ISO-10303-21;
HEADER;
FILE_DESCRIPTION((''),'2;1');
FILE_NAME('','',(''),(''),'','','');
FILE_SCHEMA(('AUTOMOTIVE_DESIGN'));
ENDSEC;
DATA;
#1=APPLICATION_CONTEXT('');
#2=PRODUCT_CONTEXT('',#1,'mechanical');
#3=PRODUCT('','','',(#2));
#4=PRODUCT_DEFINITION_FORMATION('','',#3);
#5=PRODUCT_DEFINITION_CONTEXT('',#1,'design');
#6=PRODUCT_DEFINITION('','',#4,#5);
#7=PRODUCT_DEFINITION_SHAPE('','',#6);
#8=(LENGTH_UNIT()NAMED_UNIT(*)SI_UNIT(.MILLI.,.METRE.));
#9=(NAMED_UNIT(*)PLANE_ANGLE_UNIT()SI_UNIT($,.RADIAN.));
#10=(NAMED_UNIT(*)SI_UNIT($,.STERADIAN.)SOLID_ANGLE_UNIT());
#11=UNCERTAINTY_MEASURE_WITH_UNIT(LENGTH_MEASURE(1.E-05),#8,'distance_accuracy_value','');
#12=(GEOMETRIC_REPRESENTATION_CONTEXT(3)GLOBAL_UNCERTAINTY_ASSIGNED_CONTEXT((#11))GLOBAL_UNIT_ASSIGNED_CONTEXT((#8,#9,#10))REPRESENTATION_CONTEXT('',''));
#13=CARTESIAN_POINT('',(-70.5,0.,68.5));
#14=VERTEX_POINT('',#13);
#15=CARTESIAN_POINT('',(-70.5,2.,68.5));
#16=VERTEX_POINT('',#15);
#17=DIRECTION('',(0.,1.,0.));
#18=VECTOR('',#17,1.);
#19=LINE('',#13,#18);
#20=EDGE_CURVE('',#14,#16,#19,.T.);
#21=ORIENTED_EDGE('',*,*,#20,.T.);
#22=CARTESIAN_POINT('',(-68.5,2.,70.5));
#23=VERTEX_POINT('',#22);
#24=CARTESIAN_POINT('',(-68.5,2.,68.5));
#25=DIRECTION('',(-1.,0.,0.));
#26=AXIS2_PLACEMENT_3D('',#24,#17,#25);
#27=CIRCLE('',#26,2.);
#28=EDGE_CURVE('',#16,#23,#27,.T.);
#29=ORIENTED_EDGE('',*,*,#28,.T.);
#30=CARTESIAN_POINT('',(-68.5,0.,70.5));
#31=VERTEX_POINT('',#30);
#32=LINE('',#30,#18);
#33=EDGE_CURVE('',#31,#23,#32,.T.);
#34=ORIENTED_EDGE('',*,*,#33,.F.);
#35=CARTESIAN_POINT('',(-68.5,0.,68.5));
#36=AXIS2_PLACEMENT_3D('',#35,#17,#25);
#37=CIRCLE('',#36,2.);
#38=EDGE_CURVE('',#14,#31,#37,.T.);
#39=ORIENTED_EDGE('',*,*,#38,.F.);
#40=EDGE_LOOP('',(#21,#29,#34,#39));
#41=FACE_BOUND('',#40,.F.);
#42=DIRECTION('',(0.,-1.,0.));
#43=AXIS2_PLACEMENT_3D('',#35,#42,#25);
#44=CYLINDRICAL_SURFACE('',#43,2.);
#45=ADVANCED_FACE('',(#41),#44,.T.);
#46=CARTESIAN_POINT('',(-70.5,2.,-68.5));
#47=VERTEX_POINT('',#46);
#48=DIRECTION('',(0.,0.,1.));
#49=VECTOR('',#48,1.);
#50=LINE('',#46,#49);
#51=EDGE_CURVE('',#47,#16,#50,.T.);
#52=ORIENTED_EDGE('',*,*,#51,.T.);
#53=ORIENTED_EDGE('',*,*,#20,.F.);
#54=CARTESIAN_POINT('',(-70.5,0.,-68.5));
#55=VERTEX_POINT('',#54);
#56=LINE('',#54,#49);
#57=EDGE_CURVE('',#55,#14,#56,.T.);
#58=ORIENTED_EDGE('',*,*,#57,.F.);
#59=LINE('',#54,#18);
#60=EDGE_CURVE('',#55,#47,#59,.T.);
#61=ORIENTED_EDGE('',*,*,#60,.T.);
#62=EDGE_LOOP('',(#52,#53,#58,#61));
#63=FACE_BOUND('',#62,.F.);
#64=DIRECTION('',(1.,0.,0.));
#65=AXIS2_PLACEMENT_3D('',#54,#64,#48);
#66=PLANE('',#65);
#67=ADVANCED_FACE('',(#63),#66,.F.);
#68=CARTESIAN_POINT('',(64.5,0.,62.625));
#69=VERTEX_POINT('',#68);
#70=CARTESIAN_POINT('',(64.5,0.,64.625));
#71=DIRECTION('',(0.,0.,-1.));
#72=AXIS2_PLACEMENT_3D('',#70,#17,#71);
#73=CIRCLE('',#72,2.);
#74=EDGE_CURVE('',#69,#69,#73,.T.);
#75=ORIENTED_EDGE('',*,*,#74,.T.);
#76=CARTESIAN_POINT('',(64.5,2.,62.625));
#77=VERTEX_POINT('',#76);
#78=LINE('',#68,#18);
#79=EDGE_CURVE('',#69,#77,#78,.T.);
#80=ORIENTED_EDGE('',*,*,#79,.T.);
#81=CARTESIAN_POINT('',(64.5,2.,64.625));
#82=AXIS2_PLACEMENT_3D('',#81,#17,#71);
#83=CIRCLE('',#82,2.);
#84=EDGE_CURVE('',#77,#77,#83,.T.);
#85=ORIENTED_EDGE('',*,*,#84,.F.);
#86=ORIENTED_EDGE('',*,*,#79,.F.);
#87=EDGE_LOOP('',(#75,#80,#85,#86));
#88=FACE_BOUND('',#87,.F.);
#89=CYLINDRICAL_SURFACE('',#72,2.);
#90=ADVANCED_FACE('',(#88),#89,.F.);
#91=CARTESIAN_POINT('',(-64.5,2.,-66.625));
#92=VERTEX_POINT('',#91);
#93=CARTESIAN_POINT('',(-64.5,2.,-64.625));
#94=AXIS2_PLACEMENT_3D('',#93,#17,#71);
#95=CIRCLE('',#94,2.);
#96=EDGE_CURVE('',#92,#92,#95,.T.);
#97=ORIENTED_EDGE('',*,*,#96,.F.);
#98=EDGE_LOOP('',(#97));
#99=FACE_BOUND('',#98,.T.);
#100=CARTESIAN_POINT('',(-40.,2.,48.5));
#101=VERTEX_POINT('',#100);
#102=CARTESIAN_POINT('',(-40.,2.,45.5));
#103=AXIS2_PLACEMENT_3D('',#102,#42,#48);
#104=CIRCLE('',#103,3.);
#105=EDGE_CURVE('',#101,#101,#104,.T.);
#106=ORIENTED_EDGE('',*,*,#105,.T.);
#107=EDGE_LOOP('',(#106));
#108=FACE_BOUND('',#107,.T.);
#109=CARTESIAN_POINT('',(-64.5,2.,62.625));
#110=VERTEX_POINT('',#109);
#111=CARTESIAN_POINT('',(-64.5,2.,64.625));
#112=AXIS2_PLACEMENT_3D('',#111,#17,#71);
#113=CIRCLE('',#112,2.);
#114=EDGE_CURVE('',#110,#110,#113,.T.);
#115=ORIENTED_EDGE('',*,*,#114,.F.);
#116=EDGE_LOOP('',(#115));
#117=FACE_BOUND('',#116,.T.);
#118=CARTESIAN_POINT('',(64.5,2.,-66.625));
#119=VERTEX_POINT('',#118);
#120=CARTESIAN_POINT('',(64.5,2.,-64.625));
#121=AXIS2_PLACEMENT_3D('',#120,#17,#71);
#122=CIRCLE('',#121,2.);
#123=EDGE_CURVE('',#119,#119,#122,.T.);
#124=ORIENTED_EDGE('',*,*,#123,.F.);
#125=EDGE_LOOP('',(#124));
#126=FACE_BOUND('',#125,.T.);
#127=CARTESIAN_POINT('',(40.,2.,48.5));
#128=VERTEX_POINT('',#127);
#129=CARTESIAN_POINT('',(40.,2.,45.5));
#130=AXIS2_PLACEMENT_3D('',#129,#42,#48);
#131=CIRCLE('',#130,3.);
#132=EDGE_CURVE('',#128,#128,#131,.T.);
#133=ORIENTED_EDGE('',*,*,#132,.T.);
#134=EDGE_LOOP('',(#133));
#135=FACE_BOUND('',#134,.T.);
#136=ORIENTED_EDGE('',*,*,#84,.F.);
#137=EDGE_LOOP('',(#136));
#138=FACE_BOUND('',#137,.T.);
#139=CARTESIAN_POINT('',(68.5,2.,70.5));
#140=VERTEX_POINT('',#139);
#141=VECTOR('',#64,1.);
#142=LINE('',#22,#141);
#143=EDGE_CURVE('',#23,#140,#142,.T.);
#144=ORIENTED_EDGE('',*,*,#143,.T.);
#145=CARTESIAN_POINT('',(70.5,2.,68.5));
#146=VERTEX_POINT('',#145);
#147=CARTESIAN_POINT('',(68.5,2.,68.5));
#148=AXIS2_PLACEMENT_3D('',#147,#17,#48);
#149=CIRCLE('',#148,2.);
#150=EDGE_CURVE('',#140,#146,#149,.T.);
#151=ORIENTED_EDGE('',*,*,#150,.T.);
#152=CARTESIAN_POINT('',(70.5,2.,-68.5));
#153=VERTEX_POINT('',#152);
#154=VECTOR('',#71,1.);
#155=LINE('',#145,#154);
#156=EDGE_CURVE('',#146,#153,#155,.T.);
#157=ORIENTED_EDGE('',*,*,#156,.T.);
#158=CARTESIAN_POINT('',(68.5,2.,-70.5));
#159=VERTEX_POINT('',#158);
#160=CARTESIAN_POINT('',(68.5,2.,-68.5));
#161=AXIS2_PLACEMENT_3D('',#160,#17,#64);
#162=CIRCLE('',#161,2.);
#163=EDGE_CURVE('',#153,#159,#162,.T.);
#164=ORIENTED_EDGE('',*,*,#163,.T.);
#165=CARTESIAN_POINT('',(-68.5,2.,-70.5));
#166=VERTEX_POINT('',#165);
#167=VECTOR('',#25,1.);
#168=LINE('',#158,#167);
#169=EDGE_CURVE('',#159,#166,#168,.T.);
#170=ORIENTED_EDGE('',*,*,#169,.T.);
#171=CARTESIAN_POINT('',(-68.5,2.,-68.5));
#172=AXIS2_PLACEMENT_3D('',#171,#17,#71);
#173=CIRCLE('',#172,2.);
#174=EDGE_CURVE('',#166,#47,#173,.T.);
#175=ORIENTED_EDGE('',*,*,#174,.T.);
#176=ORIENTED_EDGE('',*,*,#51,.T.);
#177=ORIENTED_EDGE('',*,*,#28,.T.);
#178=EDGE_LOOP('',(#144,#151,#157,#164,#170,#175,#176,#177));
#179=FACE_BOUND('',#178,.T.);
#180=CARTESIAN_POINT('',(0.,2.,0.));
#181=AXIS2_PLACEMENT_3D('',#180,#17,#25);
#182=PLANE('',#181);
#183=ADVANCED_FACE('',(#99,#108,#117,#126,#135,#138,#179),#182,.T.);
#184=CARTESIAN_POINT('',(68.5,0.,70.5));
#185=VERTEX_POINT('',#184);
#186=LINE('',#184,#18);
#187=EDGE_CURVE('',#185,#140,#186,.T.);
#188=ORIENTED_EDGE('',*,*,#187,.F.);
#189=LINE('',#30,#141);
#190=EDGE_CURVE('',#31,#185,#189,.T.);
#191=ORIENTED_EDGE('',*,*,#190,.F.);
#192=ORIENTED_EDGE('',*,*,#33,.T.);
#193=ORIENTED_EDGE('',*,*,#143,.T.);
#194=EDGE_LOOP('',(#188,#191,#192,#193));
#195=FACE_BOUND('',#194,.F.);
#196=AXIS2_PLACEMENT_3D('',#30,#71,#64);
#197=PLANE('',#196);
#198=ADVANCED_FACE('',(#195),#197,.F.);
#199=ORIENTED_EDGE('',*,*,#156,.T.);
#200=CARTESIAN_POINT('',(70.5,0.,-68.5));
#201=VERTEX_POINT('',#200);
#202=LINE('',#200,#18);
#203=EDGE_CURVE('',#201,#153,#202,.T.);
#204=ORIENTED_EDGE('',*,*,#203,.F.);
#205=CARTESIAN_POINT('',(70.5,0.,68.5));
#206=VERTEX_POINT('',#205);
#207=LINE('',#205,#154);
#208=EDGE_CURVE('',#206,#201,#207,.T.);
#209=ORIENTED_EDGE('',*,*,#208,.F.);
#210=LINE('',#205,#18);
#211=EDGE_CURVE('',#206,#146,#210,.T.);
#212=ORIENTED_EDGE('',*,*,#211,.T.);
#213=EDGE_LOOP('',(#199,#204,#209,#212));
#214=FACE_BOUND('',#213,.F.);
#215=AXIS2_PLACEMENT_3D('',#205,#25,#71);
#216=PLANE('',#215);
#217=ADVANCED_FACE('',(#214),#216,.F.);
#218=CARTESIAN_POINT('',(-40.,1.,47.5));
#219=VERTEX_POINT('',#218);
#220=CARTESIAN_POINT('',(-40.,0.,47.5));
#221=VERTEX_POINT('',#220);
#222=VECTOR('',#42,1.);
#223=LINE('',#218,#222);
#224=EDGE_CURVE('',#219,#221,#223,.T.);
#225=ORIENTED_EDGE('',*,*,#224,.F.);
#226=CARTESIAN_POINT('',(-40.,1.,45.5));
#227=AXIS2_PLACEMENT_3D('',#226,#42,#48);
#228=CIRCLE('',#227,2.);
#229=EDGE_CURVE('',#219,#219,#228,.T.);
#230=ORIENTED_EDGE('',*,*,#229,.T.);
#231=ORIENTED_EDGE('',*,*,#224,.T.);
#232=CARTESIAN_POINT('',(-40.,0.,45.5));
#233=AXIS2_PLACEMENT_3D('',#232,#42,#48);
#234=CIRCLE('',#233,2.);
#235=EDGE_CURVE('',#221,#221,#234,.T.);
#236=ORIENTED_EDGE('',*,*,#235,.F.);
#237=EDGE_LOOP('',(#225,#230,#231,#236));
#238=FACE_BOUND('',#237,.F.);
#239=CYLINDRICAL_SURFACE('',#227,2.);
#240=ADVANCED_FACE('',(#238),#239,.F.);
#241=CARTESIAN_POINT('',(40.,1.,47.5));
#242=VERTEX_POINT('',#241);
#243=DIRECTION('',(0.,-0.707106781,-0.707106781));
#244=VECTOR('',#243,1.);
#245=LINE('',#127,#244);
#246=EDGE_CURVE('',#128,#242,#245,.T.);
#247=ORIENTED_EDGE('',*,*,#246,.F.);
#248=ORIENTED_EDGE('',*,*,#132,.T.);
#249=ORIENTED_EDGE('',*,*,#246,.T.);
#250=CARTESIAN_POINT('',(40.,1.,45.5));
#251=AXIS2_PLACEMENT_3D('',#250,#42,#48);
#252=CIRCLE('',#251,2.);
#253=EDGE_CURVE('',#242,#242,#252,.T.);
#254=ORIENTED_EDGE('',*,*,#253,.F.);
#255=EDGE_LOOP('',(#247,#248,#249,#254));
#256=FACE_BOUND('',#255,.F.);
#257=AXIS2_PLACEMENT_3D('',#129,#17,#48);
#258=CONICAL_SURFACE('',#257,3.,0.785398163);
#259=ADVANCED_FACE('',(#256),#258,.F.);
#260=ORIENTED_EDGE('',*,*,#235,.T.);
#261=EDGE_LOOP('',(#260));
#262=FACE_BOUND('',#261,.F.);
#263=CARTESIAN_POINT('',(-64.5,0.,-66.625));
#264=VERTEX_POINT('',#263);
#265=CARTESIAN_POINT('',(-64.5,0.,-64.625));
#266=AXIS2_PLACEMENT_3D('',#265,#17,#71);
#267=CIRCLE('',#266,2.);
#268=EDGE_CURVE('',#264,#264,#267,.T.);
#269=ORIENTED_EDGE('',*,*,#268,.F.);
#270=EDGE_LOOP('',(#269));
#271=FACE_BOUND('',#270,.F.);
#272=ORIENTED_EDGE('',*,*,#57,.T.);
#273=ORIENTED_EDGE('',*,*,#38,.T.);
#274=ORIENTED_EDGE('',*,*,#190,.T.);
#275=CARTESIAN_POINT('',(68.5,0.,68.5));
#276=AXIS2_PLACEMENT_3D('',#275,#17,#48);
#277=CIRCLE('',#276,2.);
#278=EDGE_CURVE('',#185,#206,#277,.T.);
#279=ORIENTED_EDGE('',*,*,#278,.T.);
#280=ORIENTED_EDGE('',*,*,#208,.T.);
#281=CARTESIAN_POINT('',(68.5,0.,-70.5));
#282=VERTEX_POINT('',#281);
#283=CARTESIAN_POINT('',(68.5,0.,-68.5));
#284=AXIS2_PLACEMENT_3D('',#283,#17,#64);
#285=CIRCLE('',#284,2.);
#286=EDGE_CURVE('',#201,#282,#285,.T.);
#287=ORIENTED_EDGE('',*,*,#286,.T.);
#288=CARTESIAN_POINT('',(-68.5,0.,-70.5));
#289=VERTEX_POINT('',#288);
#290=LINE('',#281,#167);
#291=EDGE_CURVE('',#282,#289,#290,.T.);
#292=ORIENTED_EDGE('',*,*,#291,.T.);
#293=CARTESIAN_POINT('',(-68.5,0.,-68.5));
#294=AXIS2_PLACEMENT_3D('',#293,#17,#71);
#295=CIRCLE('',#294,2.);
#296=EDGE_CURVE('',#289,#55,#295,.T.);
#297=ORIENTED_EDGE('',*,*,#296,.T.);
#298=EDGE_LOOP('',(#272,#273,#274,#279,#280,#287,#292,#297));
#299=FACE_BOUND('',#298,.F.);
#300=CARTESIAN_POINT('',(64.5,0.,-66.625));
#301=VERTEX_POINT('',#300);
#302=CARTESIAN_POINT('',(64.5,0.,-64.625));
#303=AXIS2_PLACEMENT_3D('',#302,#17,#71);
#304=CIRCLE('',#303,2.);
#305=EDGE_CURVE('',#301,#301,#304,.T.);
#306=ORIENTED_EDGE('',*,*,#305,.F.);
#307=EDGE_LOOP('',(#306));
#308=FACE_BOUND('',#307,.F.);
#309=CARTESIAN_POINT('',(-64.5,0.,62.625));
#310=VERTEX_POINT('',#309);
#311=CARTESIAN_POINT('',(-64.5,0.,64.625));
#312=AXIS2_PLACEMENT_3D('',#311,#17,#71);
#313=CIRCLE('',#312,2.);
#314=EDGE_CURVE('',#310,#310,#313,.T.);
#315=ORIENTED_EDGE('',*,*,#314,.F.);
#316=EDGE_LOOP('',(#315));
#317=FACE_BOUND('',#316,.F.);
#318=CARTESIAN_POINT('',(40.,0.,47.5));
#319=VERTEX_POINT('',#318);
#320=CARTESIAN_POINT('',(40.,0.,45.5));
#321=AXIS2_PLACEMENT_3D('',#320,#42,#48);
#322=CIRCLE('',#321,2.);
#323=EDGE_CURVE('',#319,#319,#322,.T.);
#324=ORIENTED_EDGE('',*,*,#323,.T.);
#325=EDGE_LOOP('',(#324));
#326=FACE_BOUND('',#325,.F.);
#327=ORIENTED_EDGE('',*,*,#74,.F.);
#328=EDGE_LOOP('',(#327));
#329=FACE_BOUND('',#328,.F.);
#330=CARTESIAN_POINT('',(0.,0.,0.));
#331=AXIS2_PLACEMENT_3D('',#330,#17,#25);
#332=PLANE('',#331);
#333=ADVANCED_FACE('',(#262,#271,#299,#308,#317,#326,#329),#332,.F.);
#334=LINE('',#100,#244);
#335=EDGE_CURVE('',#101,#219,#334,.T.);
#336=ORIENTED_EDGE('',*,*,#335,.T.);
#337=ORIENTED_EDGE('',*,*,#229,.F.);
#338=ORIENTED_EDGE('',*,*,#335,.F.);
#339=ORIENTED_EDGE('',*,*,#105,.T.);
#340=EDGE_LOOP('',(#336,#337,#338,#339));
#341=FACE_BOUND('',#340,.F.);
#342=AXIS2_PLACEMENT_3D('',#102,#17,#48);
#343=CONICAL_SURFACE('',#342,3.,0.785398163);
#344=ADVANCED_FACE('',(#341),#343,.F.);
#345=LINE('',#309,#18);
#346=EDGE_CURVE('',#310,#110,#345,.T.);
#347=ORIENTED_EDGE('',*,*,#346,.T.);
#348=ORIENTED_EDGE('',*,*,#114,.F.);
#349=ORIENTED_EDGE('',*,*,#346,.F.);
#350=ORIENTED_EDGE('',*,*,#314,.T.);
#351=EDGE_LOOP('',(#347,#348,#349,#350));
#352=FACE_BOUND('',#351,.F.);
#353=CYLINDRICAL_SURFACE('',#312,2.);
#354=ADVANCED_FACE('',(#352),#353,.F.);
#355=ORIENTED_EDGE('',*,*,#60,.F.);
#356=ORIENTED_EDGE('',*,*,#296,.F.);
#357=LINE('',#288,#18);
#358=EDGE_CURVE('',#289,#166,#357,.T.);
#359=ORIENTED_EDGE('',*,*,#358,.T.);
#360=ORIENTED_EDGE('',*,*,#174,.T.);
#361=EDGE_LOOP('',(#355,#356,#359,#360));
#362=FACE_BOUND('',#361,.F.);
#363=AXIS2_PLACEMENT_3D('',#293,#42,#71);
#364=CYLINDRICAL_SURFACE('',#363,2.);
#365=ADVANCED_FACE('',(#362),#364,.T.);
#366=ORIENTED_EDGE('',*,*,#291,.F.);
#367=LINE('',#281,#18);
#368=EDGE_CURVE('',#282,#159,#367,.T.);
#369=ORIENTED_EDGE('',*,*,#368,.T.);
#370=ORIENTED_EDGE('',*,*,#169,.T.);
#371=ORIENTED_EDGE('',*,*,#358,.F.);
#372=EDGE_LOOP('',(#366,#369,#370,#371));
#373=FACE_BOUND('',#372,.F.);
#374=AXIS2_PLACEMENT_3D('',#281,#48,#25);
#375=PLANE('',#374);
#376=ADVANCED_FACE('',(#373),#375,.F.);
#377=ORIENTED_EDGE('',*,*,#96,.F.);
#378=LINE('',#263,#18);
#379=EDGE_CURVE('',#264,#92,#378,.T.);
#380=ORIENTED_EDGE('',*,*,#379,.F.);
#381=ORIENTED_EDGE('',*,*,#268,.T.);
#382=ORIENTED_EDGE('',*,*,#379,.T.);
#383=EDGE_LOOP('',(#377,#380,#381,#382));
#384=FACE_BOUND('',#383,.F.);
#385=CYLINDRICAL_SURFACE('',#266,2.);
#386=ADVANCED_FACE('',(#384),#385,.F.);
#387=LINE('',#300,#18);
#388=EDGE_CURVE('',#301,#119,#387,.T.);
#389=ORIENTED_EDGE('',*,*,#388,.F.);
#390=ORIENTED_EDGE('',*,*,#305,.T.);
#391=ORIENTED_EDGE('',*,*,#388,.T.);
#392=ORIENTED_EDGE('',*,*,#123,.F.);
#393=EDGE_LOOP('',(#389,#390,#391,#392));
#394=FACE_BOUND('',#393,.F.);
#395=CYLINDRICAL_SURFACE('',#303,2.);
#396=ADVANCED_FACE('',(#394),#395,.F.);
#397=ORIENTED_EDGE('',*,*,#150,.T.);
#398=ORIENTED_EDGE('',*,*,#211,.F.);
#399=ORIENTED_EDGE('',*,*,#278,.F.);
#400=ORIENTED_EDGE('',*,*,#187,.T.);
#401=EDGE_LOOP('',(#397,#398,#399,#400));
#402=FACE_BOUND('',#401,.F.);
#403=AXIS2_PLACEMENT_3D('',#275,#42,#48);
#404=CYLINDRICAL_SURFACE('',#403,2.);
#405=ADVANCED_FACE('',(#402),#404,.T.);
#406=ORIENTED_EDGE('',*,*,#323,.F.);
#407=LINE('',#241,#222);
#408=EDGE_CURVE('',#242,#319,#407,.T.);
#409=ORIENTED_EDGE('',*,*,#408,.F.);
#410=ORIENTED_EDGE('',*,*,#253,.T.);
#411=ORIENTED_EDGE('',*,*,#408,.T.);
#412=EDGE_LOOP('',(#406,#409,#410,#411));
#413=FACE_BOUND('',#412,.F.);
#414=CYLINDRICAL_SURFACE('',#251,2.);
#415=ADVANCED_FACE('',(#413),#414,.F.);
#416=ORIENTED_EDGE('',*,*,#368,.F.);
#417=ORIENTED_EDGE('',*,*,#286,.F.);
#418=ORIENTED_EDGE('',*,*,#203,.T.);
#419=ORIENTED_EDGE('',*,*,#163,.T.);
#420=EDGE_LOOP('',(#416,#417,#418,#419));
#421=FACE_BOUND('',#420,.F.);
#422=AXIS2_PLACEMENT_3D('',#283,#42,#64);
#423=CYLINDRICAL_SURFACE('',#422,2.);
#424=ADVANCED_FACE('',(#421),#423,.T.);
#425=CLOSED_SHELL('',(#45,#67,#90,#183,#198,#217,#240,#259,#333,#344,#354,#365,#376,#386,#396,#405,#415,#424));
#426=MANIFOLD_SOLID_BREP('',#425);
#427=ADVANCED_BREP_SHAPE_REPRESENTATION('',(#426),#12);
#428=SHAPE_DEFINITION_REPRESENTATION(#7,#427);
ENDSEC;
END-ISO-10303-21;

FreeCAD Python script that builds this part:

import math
import FreeCAD as App
import Part
import Sketcher

V = App.Vector

doc = App.newDocument("Part")
body = doc.addObject("PartDesign::Body", "Body")

sketch1 = body.newObject("Sketcher::SketchObject", "Sketch")
sketch1.AttachmentSupport = (doc.getObject("XZ_Plane"), [""])
sketch1.MapMode = "FlatFace"
sketch1.addGeometry(Part.ArcOfCircle(Part.Circle(V(-68.5, 68.5, 0), V(0, 0, 1), 2), math.radians(90), math.radians(180)), False)
sketch1.addGeometry(Part.LineSegment(V(-68.5, 70.5, 0), V(68.5, 70.5, 0)), False)
sketch1.addGeometry(Part.ArcOfCircle(Part.Circle(V(68.5, 68.5, 0), V(0, 0, 1), 2), math.radians(0), math.radians(90)), False)
sketch1.addGeometry(Part.LineSegment(V(70.5, 68.5, 0), V(70.5, -68.5, 0)), False)
sketch1.addGeometry(Part.ArcOfCircle(Part.Circle(V(68.5, -68.5, 0), V(0, 0, 1), 2), math.radians(-90), math.radians(0)), False)
sketch1.addGeometry(Part.LineSegment(V(68.5, -70.5, 0), V(-68.5, -70.5, 0)), False)
sketch1.addGeometry(Part.ArcOfCircle(Part.Circle(V(-68.5, -68.5, 0), V(0, 0, 1), 2), math.radians(180), math.radians(270)), False)
sketch1.addGeometry(Part.LineSegment(V(-70.5, -68.5, 0), V(-70.5, 68.5, 0)), False)
sketch1.addConstraint(Sketcher.Constraint("Tangent", 0, 1, 1, 1))
sketch1.addConstraint(Sketcher.Constraint("Tangent", 1, 2, 2, 2))
sketch1.addConstraint(Sketcher.Constraint("Tangent", 2, 1, 3, 1))
sketch1.addConstraint(Sketcher.Constraint("Tangent", 3, 2, 4, 2))
sketch1.addConstraint(Sketcher.Constraint("Tangent", 4, 1, 5, 1))
sketch1.addConstraint(Sketcher.Constraint("Tangent", 5, 2, 6, 2))
sketch1.addConstraint(Sketcher.Constraint("Tangent", 6, 1, 7, 1))
sketch1.addConstraint(Sketcher.Constraint("Tangent", 7, 2, 0, 2))
sketch1.addConstraint(Sketcher.Constraint("Horizontal", 1))
sketch1.addConstraint(Sketcher.Constraint("Vertical", 3))
sketch1.addConstraint(Sketcher.Constraint("Horizontal", 5))
sketch1.addConstraint(Sketcher.Constraint("Vertical", 7))
sketch1.addConstraint(Sketcher.Constraint("Equal", 0, 2))
sketch1.addConstraint(Sketcher.Constraint("Equal", 2, 4))
sketch1.addConstraint(Sketcher.Constraint("Equal", 4, 6))
sketch1.addConstraint(Sketcher.Constraint("Symmetric", 0, 3, 4, 3, -1, 1))
sketch1.addConstraint(Sketcher.Constraint("Equal", 5, 3))
sketch1.addConstraint(Sketcher.Constraint("Radius", 0, 2.0))
sketch1.addConstraint(Sketcher.Constraint("DistanceX", 1, 1, 1, 2, 137.0))
pad1 = body.newObject("PartDesign::Pad", "Pad")
pad1.Profile = sketch1
pad1.Length = 2
pad1.Reversed = True

sketch2 = body.newObject("Sketcher::SketchObject", "Sketch001")
sketch2.AttachmentSupport = (doc.getObject("XZ_Plane"), [""])
sketch2.MapMode = "FlatFace"
sketch2.addGeometry(Part.Circle(V(64.5, -64.625, 0), V(0, 0, 1), 2), False)
sketch2.addGeometry(Part.Circle(V(64.5, 64.625, 0), V(0, 0, 1), 2), False)
sketch2.addGeometry(Part.Circle(V(-64.5, -64.625, 0), V(0, 0, 1), 2), False)
sketch2.addGeometry(Part.Circle(V(-64.5, 64.625, 0), V(0, 0, 1), 2), False)
sketch2.addConstraint(Sketcher.Constraint("Equal", 0, 1))
sketch2.addConstraint(Sketcher.Constraint("Equal", 1, 2))
sketch2.addConstraint(Sketcher.Constraint("Equal", 2, 3))
sketch2.addConstraint(Sketcher.Constraint("Symmetric", 1, 3, 2, 3, -1, 1))
sketch2.addConstraint(Sketcher.Constraint("Symmetric", 0, 3, 3, 3, -1, 1))
sketch2.addConstraint(Sketcher.Constraint("Symmetric", 0, 3, 2, 3, -2))
sketch2.addConstraint(Sketcher.Constraint("Diameter", 0, 4.0))
sketch2.addConstraint(Sketcher.Constraint("DistanceX", 2, 3, 0, 3, 129.0))
sketch2.addConstraint(Sketcher.Constraint("DistanceY", 0, 3, 1, 3, 129.25))
doc.recompute()
hole = body.newObject("PartDesign::Hole", "Hole")
hole.Profile = sketch2
hole.ThreadType = "None"
hole.Diameter = 4
hole.DepthType = "ThroughAll"

sketch3 = body.newObject("Sketcher::SketchObject", "Sketch002")
sketch3.AttachmentSupport = (doc.getObject("XZ_Plane"), [""])
sketch3.MapMode = "FlatFace"
sketch3.AttachmentOffset = App.Placement(V(0, 0, -2), App.Rotation())
sketch3.addGeometry(Part.Circle(V(-40, 45.5, 0), V(0, 0, 1), 2), False)
sketch3.addGeometry(Part.Circle(V(40, 45.5, 0), V(0, 0, 1), 2), False)
sketch3.addConstraint(Sketcher.Constraint("Equal", 0, 1))
sketch3.addConstraint(Sketcher.Constraint("Symmetric", 0, 3, 1, 3, -2))
sketch3.addConstraint(Sketcher.Constraint("Diameter", 0, 4.0))
sketch3.addConstraint(Sketcher.Constraint("DistanceX", 0, 3, -1, 1, 40.0))
sketch3.addConstraint(Sketcher.Constraint("DistanceY", -1, 1, 0, 3, 45.5))
doc.recompute()
hole2 = body.newObject("PartDesign::Hole", "Hole001")
hole2.Profile = sketch3
hole2.ThreadType = "None"
hole2.Diameter = 4
hole2.DepthType = "ThroughAll"
hole2.HoleCutType = "Countersink"
hole2.HoleCutDiameter = 6
hole2.HoleCutCountersinkAngle = 90
hole2.Reversed = True

doc.recompute()
